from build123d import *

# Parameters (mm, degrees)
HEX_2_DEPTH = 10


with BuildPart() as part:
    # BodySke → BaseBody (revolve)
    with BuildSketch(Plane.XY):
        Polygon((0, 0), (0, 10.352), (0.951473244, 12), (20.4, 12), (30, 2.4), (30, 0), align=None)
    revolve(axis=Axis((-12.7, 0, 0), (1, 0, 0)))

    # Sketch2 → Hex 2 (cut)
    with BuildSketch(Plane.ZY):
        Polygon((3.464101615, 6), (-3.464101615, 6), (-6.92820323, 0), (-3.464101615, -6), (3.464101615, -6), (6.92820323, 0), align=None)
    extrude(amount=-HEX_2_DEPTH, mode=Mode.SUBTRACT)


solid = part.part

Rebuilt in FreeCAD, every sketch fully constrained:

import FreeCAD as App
import Part
import Sketcher
from FreeCAD import Vector
Q = App.Units.Quantity

doc = App.newDocument("Part")
body = doc.addObject("PartDesign::Body", "Body")

sketch1 = body.newObject("Sketcher::SketchObject", "Sketch")
sketch1.AttachmentSupport = (doc.getObject("XY_Plane"), [""])
sketch1.MapMode = "FlatFace"
sketch1.addGeometry([
    Part.LineSegment(Vector(0, 10.4, 0), Vector(0, 0, 0)),
    Part.LineSegment(Vector(0, 0, 0), Vector(30, 0, 0)),
    Part.LineSegment(Vector(30, 0, 0), Vector(30, 2.4, 0)),
    Part.LineSegment(Vector(30, 2.4, 0), Vector(20.4, 12, 0)),
    Part.LineSegment(Vector(20.4, 12, 0), Vector(1, 12, 0)),
    Part.LineSegment(Vector(1, 12, 0), Vector(0, 10.4, 0)),
], False)
sketch1.addConstraint([
    Sketcher.Constraint("Coincident", 0, 2, 1, 1),
    Sketcher.Constraint("Coincident", 1, 2, 2, 1),
    Sketcher.Constraint("Coincident", 2, 2, 3, 1),
    Sketcher.Constraint("Coincident", 3, 2, 4, 1),
    Sketcher.Constraint("Coincident", 4, 2, 5, 1),
    Sketcher.Constraint("Coincident", 5, 2, 0, 1),
    Sketcher.Constraint("Vertical", 0),
    Sketcher.Constraint("Horizontal", 1),
    Sketcher.Constraint("Vertical", 2),
    Sketcher.Constraint("Horizontal", 4),
    Sketcher.Constraint("Coincident", 0, 2, -1, 1),
    Sketcher.Constraint("DistanceX", 1, 1, 1, 2, Q("30 mm")),
    Sketcher.Constraint("Angle", 3, Q("135 deg")),
    Sketcher.Constraint("Angle", 5, Q("-120 deg")),
    Sketcher.Constraint("DistanceY", 2, 1, 2, 2, Q("2.4 mm")),
    Sketcher.Constraint("DistanceY", -1, 1, 3, 2, Q("12 mm")),
    Sketcher.Constraint("DistanceY", 0, 2, 0, 1, Q("10.352 mm")),
])
revolution = body.newObject("PartDesign::Revolution", "Revolution")
revolution.Profile = sketch1
revolution.ReferenceAxis = (sketch1, ["H_Axis"])
revolution.Angle = 360

sketch2 = body.newObject("Sketcher::SketchObject", "Sketch001")
sketch2.AttachmentSupport = (doc.getObject("YZ_Plane"), [""])
sketch2.MapMode = "FlatFace"
sketch2.addGeometry([
    Part.LineSegment(Vector(6, 3, 0), Vector(6, -3, 0)),
    Part.LineSegment(Vector(6, -3, 0), Vector(0, -7, 0)),
    Part.LineSegment(Vector(0, -7, 0), Vector(-6, -3, 0)),
    Part.LineSegment(Vector(-6, -3, 0), Vector(-6, 3, 0)),
    Part.LineSegment(Vector(-6, 3, 0), Vector(0, 7, 0)),
    Part.LineSegment(Vector(0, 7, 0), Vector(6, 3, 0)),
], False)
sketch2.addConstraint([
    Sketcher.Constraint("Coincident", 0, 2, 1, 1),
    Sketcher.Constraint("Coincident", 1, 2, 2, 1),
    Sketcher.Constraint("Coincident", 2, 2, 3, 1),
    Sketcher.Constraint("Coincident", 3, 2, 4, 1),
    Sketcher.Constraint("Coincident", 4, 2, 5, 1),
    Sketcher.Constraint("Coincident", 5, 2, 0, 1),
    Sketcher.Constraint("Vertical", 0),
    Sketcher.Constraint("Vertical", 3),
    Sketcher.Constraint("Symmetric", 0, 2, 3, 2, -1, 1),
    Sketcher.Constraint("Symmetric", 1, 2, 4, 2, -1, 1),
    Sketcher.Constraint("PointOnObject", 1, 2, -2),
    Sketcher.Constraint("Parallel", 2, 5),
    Sketcher.Constraint("Horizontal", 0, 2, 2, 2),
    Sketcher.Constraint("Angle", 1, Q("-150 deg")),
    Sketcher.Constraint("DistanceX", -1, 1, 0, 2, Q("6 mm")),
    Sketcher.Constraint("DistanceY", 0, 2, -1, 1, Q("3.464102 mm")),
])
pocket1 = body.newObject("PartDesign::Pocket", "Pocket")
pocket1.Profile = sketch2
pocket1.Length = 10
pocket1.Reversed = True

doc.recompute()
